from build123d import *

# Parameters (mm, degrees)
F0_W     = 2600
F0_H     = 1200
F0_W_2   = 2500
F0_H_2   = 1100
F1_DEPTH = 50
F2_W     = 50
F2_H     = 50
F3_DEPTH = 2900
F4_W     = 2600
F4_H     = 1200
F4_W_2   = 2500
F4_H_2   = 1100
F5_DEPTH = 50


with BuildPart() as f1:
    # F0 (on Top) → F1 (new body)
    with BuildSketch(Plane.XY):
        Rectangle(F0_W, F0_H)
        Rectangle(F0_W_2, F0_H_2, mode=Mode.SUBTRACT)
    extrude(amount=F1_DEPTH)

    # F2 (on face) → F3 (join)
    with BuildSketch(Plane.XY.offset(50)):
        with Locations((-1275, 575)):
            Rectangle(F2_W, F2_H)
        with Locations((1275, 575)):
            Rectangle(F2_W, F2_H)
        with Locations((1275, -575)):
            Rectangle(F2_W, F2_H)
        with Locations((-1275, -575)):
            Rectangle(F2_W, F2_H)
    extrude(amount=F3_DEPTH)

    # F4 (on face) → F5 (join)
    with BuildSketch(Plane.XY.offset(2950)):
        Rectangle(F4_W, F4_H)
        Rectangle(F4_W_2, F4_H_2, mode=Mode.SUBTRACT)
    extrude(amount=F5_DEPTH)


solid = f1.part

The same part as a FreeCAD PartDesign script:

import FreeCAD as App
import Part
import Sketcher
Q = App.Units.Quantity


def add_polygon(sketch, points):
    """Adds a closed chain of lines whose ends are joined by coincident constraints."""
    first, n = sketch.GeometryCount, len(points)
    for a, b in zip(points, points[1:] + points[:1]):
        sketch.addGeometry(Part.LineSegment(App.Vector(*a, 0), App.Vector(*b, 0)), False)
    for i in range(n):
        sketch.addConstraint(Sketcher.Constraint("Coincident", first + i, 2, first + (i + 1) % n, 1))

doc = App.newDocument("Part")
params = doc.addObject("Spreadsheet::Sheet", "Params")
for row, (alias, value) in enumerate([
    ("sketch1_width", "2600 mm"),
    ("sketch1_width2", "2500 mm"),
    ("sketch1_height", "1200 mm"),
    ("sketch1_height2", "1100 mm"),
    ("pad1_length", "50 mm"),
    ("sketch2_width", "50 mm"),
    ("pad2_length", "2900 mm"),
    ("sketch3_width", "2600 mm"),
    ("sketch3_width2", "2500 mm"),
    ("sketch3_height", "1200 mm"),
    ("sketch3_height2", "1100 mm"),
    ("pad3_length", "50 mm"),
], start=1):
    params.set(f"A{row}", alias)
    params.set(f"B{row}", "=" + value)
    params.setAlias(f"B{row}", alias)

body = doc.addObject("PartDesign::Body", "Body")

sketch1 = body.newObject("Sketcher::SketchObject", "Sketch")
sketch1.AttachmentSupport = (doc.getObject("XY_Plane"), [""])
sketch1.MapMode = "FlatFace"
add_polygon(sketch1, [(-1300, 600), (-1300, -600), (1300, -600), (1300, 600)])
add_polygon(sketch1, [(1250, -550), (-1250, -550), (-1250, 550), (1250, 550)])
sketch1.addConstraint(Sketcher.Constraint("Vertical", 0))
sketch1.addConstraint(Sketcher.Constraint("Horizontal", 1))
sketch1.addConstraint(Sketcher.Constraint("Vertical", 2))
sketch1.addConstraint(Sketcher.Constraint("Horizontal", 3))
sketch1.addConstraint(Sketcher.Constraint("Horizontal", 4))
sketch1.addConstraint(Sketcher.Constraint("Vertical", 5))
sketch1.addConstraint(Sketcher.Constraint("Horizontal", 6))
sketch1.addConstraint(Sketcher.Constraint("Vertical", 7))
sketch1.addConstraint(Sketcher.Constraint("Symmetric", 0, 2, 2, 2, -1, 1))
sketch1.addConstraint(Sketcher.Constraint("Symmetric", 4, 2, 6, 2, -1, 1))
sketch1.addConstraint(Sketcher.Constraint("DistanceX", 1, 1, 1, 2, Q("2600 mm")))
sketch1.addConstraint(Sketcher.Constraint("DistanceX", 4, 2, 4, 1, Q("2500 mm")))
sketch1.addConstraint(Sketcher.Constraint("DistanceY", 0, 2, 0, 1, Q("1200 mm")))
sketch1.addConstraint(Sketcher.Constraint("DistanceY", 5, 1, 5, 2, Q("1100 mm")))
sketch1.setExpression("Constraints[18]", "Params.sketch1_width")
sketch1.setExpression("Constraints[19]", "Params.sketch1_width2")
sketch1.setExpression("Constraints[20]", "Params.sketch1_height")
sketch1.setExpression("Constraints[21]", "Params.sketch1_height2")
pad1 = body.newObject("PartDesign::Pad", "Pad")
pad1.Profile = sketch1
pad1.setExpression("Length", "Params.pad1_length")

sketch2 = body.newObject("Sketcher::SketchObject", "Sketch001")
sketch2.AttachmentSupport = (doc.getObject("XY_Plane"), [""])
sketch2.MapMode = "FlatFace"
sketch2.AttachmentOffset = App.Placement(App.Vector(0, 0, 50), App.Rotation())
add_polygon(sketch2, [(-1300, 600), (-1300, 550), (-1250, 550), (-1250, 600)])
add_polygon(sketch2, [(1250, 600), (1250, 550), (1300, 550), (1300, 600)])
add_polygon(sketch2, [(1250, -550), (1250, -600), (1300, -600), (1300, -550)])
add_polygon(sketch2, [(-1300, -550), (-1300, -600), (-1250, -600), (-1250, -550)])
sketch2.addConstraint(Sketcher.Constraint("Vertical", 0))
sketch2.addConstraint(Sketcher.Constraint("Horizontal", 1))
sketch2.addConstraint(Sketcher.Constraint("Vertical", 2))
sketch2.addConstraint(Sketcher.Constraint("Horizontal", 3))
sketch2.addConstraint(Sketcher.Constraint("Vertical", 4))
sketch2.addConstraint(Sketcher.Constraint("Horizontal", 5))
sketch2.addConstraint(Sketcher.Constraint("Vertical", 6))
sketch2.addConstraint(Sketcher.Constraint("Horizontal", 7))
sketch2.addConstraint(Sketcher.Constraint("Vertical", 8))
sketch2.addConstraint(Sketcher.Constraint("Horizontal", 9))
sketch2.addConstraint(Sketcher.Constraint("Vertical", 10))
sketch2.addConstraint(Sketcher.Constraint("Horizontal", 11))
sketch2.addConstraint(Sketcher.Constraint("Vertical", 12))
sketch2.addConstraint(Sketcher.Constraint("Horizontal", 13))
sketch2.addConstraint(Sketcher.Constraint("Vertical", 14))
sketch2.addConstraint(Sketcher.Constraint("Horizontal", 15))
sketch2.addConstraint(Sketcher.Constraint("Symmetric", 2, 2, 8, 2, -1, 1))
sketch2.addConstraint(Sketcher.Constraint("Symmetric", 0, 2, 10, 2, -1, 1))
sketch2.addConstraint(Sketcher.Constraint("Symmetric", 6, 2, 12, 2, -1, 1))
sketch2.addConstraint(Sketcher.Constraint("Symmetric", 4, 2, 14, 2, -1, 1))
sketch2.addConstraint(Sketcher.Constraint("Symmetric", 1, 2, 4, 2, -2))
sketch2.addConstraint(Sketcher.Constraint("Symmetric", 3, 2, 6, 2, -2))
sketch2.addConstraint(Sketcher.Constraint("Equal", 15, 0))
sketch2.addConstraint(Sketcher.Constraint("DistanceX", 1, 1, 1, 2, Q("50 mm")))
sketch2.addConstraint(Sketcher.Constraint("DistanceX", 0, 2, -1, 1, Q("1300 mm")))
sketch2.addConstraint(Sketcher.Constraint("DistanceY", -1, 1, 0, 2, Q("550 mm")))
sketch2.setExpression("Constraints[39]", "Params.sketch2_width")
pad2 = body.newObject("PartDesign::Pad", "Pad001")
pad2.Profile = sketch2
pad2.setExpression("Length", "Params.pad2_length")

sketch3 = body.newObject("Sketcher::SketchObject", "Sketch002")
sketch3.AttachmentSupport = (doc.getObject("XY_Plane"), [""])
sketch3.MapMode = "FlatFace"
sketch3.AttachmentOffset = App.Placement(App.Vector(0, 0, 2950), App.Rotation())
add_polygon(sketch3, [(-1300, 600), (-1300, -600), (1300, -600), (1300, 600)])
add_polygon(sketch3, [(1250, -550), (-1250, -550), (-1250, 550), (1250, 550)])
sketch3.addConstraint(Sketcher.Constraint("Vertical", 0))
sketch3.addConstraint(Sketcher.Constraint("Horizontal", 1))
sketch3.addConstraint(Sketcher.Constraint("Vertical", 2))
sketch3.addConstraint(Sketcher.Constraint("Horizontal", 3))
sketch3.addConstraint(Sketcher.Constraint("Horizontal", 4))
sketch3.addConstraint(Sketcher.Constraint("Vertical", 5))
sketch3.addConstraint(Sketcher.Constraint("Horizontal", 6))
sketch3.addConstraint(Sketcher.Constraint("Vertical", 7))
sketch3.addConstraint(Sketcher.Constraint("Symmetric", 0, 2, 2, 2, -1, 1))
sketch3.addConstraint(Sketcher.Constraint("Symmetric", 4, 2, 6, 2, -1, 1))
sketch3.addConstraint(Sketcher.Constraint("DistanceX", 1, 1, 1, 2, Q("2600 mm")))
sketch3.addConstraint(Sketcher.Constraint("DistanceX", 4, 2, 4, 1, Q("2500 mm")))
sketch3.addConstraint(Sketcher.Constraint("DistanceY", 0, 2, 0, 1, Q("1200 mm")))
sketch3.addConstraint(Sketcher.Constraint("DistanceY", 5, 1, 5, 2, Q("1100 mm")))
sketch3.setExpression("Constraints[18]", "Params.sketch3_width")
sketch3.setExpression("Constraints[19]", "Params.sketch3_width2")
sketch3.setExpression("Constraints[20]", "Params.sketch3_height")
sketch3.setExpression("Constraints[21]", "Params.sketch3_height2")
pad3 = body.newObject("PartDesign::Pad", "Pad002")
pad3.Profile = sketch3
pad3.setExpression("Length", "Params.pad3_length")

doc.recompute()
